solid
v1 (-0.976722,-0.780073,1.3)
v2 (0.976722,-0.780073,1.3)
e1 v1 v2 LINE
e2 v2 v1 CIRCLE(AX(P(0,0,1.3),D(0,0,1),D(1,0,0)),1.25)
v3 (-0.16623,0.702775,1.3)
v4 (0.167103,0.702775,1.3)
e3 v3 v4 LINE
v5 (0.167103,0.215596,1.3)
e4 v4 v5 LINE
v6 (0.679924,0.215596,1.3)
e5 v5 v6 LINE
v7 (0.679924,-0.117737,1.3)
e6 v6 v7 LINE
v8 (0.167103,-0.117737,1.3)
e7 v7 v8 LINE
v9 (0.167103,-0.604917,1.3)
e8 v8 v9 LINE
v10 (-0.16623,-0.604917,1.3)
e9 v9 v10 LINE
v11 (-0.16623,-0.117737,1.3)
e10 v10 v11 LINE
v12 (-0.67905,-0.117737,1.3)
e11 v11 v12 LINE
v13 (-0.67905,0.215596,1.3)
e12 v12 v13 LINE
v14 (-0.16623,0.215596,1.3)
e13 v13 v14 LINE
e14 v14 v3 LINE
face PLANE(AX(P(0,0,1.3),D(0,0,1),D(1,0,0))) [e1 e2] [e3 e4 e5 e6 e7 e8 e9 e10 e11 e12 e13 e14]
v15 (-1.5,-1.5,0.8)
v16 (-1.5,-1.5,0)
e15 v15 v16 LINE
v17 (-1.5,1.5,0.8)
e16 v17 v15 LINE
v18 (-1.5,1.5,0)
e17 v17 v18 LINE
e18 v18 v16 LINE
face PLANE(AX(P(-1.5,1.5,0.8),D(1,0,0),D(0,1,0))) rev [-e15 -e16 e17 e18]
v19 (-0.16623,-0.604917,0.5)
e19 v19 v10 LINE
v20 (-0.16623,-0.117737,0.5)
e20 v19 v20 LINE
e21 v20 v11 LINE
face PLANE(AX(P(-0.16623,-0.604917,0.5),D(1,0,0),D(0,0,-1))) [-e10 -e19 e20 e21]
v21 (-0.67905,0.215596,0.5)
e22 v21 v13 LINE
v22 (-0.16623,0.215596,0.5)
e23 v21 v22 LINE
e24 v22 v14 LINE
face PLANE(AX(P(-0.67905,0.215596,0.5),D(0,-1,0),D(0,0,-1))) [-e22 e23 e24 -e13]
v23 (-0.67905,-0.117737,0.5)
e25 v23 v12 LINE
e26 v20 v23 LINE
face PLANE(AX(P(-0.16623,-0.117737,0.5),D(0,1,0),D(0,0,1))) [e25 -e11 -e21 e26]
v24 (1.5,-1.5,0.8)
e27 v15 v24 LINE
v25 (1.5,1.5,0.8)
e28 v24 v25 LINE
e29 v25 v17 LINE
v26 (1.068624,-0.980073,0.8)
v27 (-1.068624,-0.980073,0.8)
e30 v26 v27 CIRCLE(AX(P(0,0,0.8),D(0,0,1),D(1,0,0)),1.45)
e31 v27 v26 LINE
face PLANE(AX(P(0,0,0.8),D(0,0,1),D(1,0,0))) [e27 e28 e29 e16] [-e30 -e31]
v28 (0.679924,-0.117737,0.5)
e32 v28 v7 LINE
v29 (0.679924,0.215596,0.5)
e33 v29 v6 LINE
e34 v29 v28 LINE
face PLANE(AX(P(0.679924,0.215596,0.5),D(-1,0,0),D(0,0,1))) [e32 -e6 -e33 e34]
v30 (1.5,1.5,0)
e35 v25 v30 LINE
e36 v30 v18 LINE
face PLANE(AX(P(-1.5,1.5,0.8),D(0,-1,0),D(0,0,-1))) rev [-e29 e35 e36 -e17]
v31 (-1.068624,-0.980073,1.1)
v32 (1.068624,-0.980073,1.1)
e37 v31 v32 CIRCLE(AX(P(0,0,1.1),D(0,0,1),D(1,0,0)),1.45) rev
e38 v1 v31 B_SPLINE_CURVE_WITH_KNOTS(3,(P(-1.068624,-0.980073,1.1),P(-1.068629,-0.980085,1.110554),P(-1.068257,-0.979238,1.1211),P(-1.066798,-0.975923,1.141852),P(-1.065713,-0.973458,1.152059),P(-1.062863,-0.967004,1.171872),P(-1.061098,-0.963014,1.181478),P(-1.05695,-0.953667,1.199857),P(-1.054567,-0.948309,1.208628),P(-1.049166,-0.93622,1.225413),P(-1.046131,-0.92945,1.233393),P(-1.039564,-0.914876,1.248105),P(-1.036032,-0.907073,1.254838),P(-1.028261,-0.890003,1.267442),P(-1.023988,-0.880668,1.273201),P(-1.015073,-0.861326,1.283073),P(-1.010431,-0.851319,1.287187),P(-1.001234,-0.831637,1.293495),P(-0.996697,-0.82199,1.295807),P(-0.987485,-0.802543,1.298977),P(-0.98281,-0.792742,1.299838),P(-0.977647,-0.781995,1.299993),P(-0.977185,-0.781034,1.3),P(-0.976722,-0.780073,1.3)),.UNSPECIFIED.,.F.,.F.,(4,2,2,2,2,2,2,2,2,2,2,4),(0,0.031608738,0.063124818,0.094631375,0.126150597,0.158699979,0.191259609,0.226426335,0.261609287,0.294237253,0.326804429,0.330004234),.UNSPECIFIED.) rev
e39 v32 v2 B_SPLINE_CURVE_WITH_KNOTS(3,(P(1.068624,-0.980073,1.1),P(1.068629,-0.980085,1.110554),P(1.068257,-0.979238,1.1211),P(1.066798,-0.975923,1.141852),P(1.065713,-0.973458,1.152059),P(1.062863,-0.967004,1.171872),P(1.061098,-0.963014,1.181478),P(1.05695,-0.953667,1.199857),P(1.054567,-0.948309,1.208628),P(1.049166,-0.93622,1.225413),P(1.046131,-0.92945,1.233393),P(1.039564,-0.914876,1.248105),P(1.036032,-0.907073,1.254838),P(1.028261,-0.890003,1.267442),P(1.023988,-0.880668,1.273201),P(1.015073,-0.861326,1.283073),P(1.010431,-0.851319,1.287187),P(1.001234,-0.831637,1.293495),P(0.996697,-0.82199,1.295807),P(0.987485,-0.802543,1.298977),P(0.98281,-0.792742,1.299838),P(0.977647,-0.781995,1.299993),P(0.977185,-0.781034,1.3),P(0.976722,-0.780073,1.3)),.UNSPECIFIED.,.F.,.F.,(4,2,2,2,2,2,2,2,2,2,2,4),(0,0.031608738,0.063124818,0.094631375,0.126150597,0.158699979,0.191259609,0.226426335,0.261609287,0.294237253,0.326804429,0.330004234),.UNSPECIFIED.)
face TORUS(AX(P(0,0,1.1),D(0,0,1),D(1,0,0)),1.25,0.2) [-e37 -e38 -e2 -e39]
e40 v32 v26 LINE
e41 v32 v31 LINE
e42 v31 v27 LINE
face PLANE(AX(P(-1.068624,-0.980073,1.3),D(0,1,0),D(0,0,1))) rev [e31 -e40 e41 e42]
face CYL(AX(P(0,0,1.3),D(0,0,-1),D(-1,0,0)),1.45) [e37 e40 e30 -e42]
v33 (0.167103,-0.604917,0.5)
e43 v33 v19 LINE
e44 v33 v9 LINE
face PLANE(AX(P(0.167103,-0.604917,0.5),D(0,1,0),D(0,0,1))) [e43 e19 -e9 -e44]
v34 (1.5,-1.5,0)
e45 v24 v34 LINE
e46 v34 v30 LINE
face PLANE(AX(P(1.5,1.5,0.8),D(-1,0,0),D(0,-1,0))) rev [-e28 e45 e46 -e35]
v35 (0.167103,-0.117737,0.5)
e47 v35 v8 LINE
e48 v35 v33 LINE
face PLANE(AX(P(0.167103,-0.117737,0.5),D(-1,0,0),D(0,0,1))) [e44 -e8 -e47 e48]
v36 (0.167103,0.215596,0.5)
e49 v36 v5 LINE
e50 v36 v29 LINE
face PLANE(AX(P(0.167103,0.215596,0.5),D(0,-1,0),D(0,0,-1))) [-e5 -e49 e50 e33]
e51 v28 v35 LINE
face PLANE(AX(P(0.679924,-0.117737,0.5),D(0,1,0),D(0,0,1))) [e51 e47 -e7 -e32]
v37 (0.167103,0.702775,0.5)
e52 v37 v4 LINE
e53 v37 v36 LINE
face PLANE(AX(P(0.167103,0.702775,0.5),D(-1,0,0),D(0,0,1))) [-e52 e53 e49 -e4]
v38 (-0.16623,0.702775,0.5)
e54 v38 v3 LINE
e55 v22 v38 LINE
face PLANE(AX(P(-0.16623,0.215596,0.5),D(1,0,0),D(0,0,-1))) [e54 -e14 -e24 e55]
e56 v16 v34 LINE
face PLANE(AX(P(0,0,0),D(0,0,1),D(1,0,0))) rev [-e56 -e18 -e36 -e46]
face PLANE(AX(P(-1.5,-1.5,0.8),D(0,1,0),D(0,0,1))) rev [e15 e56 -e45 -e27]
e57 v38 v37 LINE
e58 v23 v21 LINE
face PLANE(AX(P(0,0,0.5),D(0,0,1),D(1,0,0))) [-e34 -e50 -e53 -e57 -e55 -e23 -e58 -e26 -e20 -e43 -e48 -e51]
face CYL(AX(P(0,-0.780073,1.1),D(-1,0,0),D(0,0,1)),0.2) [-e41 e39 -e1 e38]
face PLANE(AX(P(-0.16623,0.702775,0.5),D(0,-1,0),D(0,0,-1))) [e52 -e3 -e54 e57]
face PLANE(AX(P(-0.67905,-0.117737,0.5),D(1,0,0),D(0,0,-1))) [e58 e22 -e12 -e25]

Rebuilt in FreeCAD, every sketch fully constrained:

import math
import FreeCAD as App
import Part
import Sketcher
from FreeCAD import Vector


def edges_at(feature, points):
    """Names of the edges that pass closest to the given points."""
    edges = feature.Shape.Edges
    near = lambda p: min(range(len(edges)), key=lambda i: edges[i].distToShape(Part.Vertex(*p))[0])
    return sorted({f"Edge{near(p) + 1}" for p in points})


def add_polygon(sketch, points):
    """Adds a closed chain of lines whose ends are joined by coincident constraints."""
    first, n = sketch.GeometryCount, len(points)
    for a, b in zip(points, points[1:] + points[:1]):
        sketch.addGeometry(Part.LineSegment(App.Vector(*a, 0), App.Vector(*b, 0)), False)
    for i in range(n):
        sketch.addConstraint(Sketcher.Constraint("Coincident", first + i, 2, first + (i + 1) % n, 1))

doc = App.newDocument("Part")
body = doc.addObject("PartDesign::Body", "Body")

# Sketch on XY plane
sketch1 = doc.addObject("Sketcher::SketchObject", "Sketch")
body.addObject(sketch1)
sketch1.AttachmentSupport = (doc.XY_Plane, [""])
sketch1.MapMode = "FlatFace"
add_polygon(sketch1, [(-1.5, 1.5), (-1.5, -1.5), (1.5, -1.5), (1.5, 1.5)])  # lines 0-3
sketch1.addConstraint([
    Sketcher.Constraint("Vertical", 0),
    Sketcher.Constraint("Horizontal", 1),
    Sketcher.Constraint("Vertical", 2),
    Sketcher.Constraint("Horizontal", 3),
    Sketcher.Constraint("Symmetric", 0, 2, 2, 2, -1, 1),
    Sketcher.Constraint("Equal", 3, 0),
    Sketcher.Constraint("DistanceX", 1, 1, 1, 2, 3.0),
])
pad1 = doc.addObject("PartDesign::Pad", "Pad")
body.addObject(pad1)
pad1.Profile = sketch1
pad1.Length = 0.8

# Sketch on XY plane
sketch2 = doc.addObject("Sketcher::SketchObject", "Sketch001")
body.addObject(sketch2)
sketch2.AttachmentSupport = (doc.XY_Plane, [""])
sketch2.MapMode = "FlatFace"
sketch2.AttachmentOffset = App.Placement(Vector(0, 0, 0.8), App.Rotation())
sketch2.addGeometry([
    Part.LineSegment(Vector(-1.1, -1, 0), Vector(1.1, -1, 0)),
    Part.ArcOfCircle(Part.Circle(Vector(0, 0, 0), Vector(0, 0, 1), 1.4), math.radians(-43), math.radians(223)),
], False)
sketch2.addConstraint([
    Sketcher.Constraint("Coincident", 0, 1, 1, 2),
    Sketcher.Constraint("Coincident", 1, 1, 0, 2),
    Sketcher.Constraint("Horizontal", 0),
    Sketcher.Constraint("Coincident", 1, 3, -1, 1),
    Sketcher.Constraint("Radius", 1, 1.45),
    Sketcher.Constraint("DistanceX", 0, 1, 0, 2, 2.137248),
])
pad2 = doc.addObject("PartDesign::Pad", "Pad001")
body.addObject(pad2)
pad2.Profile = sketch2
pad2.Length = 0.5

# Sketch on XY plane
sketch3 = doc.addObject("Sketcher::SketchObject", "Sketch002")
body.addObject(sketch3)
sketch3.AttachmentSupport = (doc.XY_Plane, [""])
sketch3.MapMode = "FlatFace"
sketch3.AttachmentOffset = App.Placement(Vector(0, 0, 1.3), App.Rotation())
add_polygon(sketch3, [(-0.17, 0.7), (-0.17, 0.22), (-0.68, 0.22), (-0.68, -0.12), (-0.17, -0.12), (-0.17, -0.6), (0.17, -0.6), (0.17, -0.12), (0.68, -0.12), (0.68, 0.22), (0.17, 0.22), (0.17, 0.7)])  # lines 0-11
sketch3.addConstraint([
    Sketcher.Constraint("Vertical", 0),
    Sketcher.Constraint("Horizontal", 1),
    Sketcher.Constraint("Vertical", 2),
    Sketcher.Constraint("Horizontal", 3),
    Sketcher.Constraint("Vertical", 4),
    Sketcher.Constraint("Horizontal", 5),
    Sketcher.Constraint("Vertical", 6),
    Sketcher.Constraint("Horizontal", 7),
    Sketcher.Constraint("Vertical", 8),
    Sketcher.Constraint("Horizontal", 9),
    Sketcher.Constraint("Vertical", 10),
    Sketcher.Constraint("Horizontal", 11),
    Sketcher.Constraint("Horizontal", 3, 2, 6, 2),
    Sketcher.Constraint("Horizontal", 1, 2, 8, 2),
    Sketcher.Constraint("Vertical", 0, 2, 3, 2),
    Sketcher.Constraint("Vertical", 6, 2, 9, 2),
    Sketcher.Constraint("Equal", 3, 7),
    Sketcher.Constraint("Equal", 11, 2),
    Sketcher.Constraint("Equal", 0, 4),
    Sketcher.Constraint("DistanceX", 1, 2, 1, 1, 0.512821),
    Sketcher.Constraint("DistanceY", 0, 2, 0, 1, 0.487179),
    Sketcher.Constraint("DistanceX", 5, 1, 5, 2, 0.333333),
    Sketcher.Constraint("DistanceX", 0, 2, -1, 1, 0.16623),
    Sketcher.Constraint("DistanceY", -1, 1, 0, 2, 0.215596),
])
pocket1 = doc.addObject("PartDesign::Pocket", "Pocket")
body.addObject(pocket1)
pocket1.Profile = sketch3
pocket1.Length = 0.8
doc.recompute()

fillet = doc.addObject("PartDesign::Fillet", "Fillet")
body.addObject(fillet)
fillet.Base = (pocket1, edges_at(pocket1, [(0, 1.45, 1.3), (0, -0.98, 1.3)]))
fillet.Radius = 0.2

doc.recompute()
